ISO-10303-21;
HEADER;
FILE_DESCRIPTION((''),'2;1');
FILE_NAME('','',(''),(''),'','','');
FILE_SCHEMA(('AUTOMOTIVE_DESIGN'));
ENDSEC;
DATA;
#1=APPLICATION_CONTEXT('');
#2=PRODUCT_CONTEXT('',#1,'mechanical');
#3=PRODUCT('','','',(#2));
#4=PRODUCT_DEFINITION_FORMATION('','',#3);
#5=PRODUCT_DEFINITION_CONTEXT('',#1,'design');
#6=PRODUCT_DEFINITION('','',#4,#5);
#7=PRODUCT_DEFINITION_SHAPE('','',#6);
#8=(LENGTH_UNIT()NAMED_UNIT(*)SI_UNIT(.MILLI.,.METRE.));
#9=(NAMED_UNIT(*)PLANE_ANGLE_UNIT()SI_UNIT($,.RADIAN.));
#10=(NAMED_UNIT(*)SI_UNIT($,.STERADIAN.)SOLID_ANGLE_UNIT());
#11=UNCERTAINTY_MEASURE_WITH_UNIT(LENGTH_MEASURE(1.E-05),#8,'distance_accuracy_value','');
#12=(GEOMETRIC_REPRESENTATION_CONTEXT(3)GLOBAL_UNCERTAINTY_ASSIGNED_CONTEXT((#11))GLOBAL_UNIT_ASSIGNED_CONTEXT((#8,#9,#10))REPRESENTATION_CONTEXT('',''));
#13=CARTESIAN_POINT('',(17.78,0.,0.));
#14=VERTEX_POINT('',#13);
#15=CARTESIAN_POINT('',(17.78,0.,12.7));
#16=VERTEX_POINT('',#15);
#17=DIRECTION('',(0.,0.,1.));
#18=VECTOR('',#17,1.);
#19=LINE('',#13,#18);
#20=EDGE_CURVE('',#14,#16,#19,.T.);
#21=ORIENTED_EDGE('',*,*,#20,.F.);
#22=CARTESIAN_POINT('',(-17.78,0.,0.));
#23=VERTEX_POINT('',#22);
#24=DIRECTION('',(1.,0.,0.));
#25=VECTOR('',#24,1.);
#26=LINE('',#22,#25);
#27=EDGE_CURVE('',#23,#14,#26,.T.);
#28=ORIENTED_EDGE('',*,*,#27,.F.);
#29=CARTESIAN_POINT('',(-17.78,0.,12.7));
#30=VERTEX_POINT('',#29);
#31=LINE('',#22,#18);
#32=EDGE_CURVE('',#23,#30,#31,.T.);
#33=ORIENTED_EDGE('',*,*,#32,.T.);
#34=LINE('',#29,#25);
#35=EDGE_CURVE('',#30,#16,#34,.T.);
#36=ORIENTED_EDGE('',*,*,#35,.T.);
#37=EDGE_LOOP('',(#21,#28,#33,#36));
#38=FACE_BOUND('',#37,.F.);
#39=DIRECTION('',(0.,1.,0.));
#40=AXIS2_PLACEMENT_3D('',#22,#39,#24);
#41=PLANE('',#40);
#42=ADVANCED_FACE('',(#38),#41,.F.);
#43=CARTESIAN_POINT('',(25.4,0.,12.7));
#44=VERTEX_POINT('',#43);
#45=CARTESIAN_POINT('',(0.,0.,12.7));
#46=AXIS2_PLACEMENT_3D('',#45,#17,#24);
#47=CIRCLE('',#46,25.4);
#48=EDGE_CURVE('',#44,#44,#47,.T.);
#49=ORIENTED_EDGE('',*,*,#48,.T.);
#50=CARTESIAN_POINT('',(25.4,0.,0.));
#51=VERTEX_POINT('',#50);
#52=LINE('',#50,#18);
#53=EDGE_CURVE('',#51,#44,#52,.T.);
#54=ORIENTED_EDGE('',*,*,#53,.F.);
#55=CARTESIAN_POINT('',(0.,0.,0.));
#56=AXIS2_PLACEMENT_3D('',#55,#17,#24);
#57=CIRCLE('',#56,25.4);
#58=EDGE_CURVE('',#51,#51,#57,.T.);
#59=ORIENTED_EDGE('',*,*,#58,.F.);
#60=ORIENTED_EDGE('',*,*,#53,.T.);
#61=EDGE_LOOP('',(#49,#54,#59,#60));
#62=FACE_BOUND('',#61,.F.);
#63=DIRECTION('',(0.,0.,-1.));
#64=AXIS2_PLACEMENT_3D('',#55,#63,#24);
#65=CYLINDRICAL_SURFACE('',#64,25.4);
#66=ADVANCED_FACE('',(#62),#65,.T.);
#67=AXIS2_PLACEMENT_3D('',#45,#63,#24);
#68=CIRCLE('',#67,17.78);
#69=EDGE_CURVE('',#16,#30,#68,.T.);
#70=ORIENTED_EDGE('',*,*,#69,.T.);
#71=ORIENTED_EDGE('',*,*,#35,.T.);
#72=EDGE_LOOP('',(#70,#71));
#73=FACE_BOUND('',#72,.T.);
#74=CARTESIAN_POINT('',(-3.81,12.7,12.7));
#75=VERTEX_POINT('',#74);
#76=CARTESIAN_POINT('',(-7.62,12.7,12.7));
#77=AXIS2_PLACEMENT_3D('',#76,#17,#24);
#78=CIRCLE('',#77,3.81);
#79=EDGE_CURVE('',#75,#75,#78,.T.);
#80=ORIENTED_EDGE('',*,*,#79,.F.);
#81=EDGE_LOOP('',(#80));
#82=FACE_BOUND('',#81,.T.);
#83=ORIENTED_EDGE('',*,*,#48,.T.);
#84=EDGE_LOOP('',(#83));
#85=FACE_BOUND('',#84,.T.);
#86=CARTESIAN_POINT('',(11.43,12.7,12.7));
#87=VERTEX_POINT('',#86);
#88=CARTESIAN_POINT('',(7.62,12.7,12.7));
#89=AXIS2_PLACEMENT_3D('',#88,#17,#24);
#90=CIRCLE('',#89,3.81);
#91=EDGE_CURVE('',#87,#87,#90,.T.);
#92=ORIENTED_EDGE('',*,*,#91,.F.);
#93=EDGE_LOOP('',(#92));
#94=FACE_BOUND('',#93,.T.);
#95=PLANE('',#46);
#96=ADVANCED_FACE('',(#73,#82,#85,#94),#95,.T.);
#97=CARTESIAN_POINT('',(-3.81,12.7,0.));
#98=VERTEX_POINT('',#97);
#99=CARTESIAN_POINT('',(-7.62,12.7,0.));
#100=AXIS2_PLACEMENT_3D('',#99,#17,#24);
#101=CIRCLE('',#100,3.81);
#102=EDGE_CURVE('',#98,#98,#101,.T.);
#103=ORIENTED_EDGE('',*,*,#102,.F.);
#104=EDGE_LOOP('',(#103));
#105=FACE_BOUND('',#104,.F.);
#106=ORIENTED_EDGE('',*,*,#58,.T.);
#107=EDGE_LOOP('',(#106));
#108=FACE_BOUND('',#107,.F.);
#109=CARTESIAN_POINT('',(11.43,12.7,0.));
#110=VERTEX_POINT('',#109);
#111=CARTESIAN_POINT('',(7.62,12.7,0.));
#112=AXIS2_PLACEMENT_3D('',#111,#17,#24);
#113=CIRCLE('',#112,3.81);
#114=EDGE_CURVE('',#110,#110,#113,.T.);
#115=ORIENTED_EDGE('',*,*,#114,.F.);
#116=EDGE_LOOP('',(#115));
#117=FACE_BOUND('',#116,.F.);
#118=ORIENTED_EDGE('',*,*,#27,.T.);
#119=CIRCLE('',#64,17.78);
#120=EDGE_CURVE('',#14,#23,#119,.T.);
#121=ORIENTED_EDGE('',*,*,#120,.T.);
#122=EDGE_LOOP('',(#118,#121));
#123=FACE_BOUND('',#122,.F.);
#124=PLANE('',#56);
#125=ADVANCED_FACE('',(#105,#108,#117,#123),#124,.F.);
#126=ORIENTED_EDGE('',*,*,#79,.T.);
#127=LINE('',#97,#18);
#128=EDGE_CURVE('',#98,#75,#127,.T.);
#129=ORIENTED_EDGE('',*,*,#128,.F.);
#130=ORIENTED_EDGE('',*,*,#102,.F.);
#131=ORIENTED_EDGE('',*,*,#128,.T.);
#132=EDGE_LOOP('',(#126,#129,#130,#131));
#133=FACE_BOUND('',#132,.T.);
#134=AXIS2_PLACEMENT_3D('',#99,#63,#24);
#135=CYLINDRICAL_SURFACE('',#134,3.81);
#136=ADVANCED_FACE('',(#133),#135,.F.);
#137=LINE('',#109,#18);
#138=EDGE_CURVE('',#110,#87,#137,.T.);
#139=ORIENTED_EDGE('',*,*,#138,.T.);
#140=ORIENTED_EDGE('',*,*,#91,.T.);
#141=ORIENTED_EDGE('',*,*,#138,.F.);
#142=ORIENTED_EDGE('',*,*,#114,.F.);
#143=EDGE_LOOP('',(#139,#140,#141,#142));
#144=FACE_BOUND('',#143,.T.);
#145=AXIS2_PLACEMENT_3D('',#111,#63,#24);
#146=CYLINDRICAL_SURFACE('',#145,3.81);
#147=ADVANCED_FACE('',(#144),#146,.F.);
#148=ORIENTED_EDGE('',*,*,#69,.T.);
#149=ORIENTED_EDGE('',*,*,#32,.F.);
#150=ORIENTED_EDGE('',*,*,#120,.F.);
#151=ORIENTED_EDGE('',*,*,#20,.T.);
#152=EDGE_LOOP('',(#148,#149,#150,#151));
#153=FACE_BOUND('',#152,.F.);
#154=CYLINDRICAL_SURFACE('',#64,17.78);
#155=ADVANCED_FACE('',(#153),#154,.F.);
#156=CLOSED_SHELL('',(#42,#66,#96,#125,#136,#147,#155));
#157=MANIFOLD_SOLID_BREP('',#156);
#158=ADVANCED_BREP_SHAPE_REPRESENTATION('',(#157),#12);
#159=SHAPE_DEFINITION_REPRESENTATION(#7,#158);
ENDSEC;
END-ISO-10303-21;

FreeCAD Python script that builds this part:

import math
import FreeCAD as App
import Part
import Sketcher
from FreeCAD import Vector
Q = App.Units.Quantity

doc = App.newDocument("Part")
body = doc.addObject("PartDesign::Body", "Body")

# Sketch on XY plane
sketch1 = body.newObject("Sketcher::SketchObject", "Sketch")
sketch1.AttachmentSupport = (doc.getObject("XY_Plane"), [""])
sketch1.MapMode = "FlatFace"
sketch1.addGeometry(Part.Circle(Vector(0, 0, 0), Vector(0, 0, 1), 25.4), False)
sketch1.addGeometry(Part.ArcOfCircle(Part.Circle(Vector(0, 0, 0), Vector(0, 0, 1), 17.8), math.radians(180), math.radians(360)), False)
sketch1.addGeometry(Part.LineSegment(Vector(-17.8, 0, 0), Vector(17.8, 0, 0)), False)
sketch1.addGeometry(Part.Circle(Vector(-7.6, 12.7, 0), Vector(0, 0, 1), 3.8), False)
sketch1.addGeometry(Part.Circle(Vector(7.6, 12.7, 0), Vector(0, 0, 1), 3.8), False)
sketch1.addConstraint(Sketcher.Constraint("Coincident", 1, 1, 2, 1))
sketch1.addConstraint(Sketcher.Constraint("Coincident", 2, 2, 1, 2))
sketch1.addConstraint(Sketcher.Constraint("Horizontal", 2))
sketch1.addConstraint(Sketcher.Constraint("Coincident", 0, 3, -1, 1))
sketch1.addConstraint(Sketcher.Constraint("Coincident", 1, 3, -1, 1))
sketch1.addConstraint(Sketcher.Constraint("Equal", 3, 4))
sketch1.addConstraint(Sketcher.Constraint("Symmetric", 3, 3, 4, 3, -2))
sketch1.addConstraint(Sketcher.Constraint("PointOnObject", 1, 1, -1))
sketch1.addConstraint(Sketcher.Constraint("Diameter", 0, Q("2 in")))
sketch1.addConstraint(Sketcher.Constraint("Diameter", 3, Q("0.3 in")))
sketch1.addConstraint(Sketcher.Constraint("Radius", 1, Q("0.7 in")))
sketch1.addConstraint(Sketcher.Constraint("DistanceX", 1, 1, 4, 3, Q("1 in")))
sketch1.addConstraint(Sketcher.Constraint("DistanceY", -1, 1, 3, 3, Q("0.5 in")))
pad1 = body.newObject("PartDesign::Pad", "Pad")
pad1.Profile = sketch1
pad1.Length = Q("0.5 in")

doc.recompute()
